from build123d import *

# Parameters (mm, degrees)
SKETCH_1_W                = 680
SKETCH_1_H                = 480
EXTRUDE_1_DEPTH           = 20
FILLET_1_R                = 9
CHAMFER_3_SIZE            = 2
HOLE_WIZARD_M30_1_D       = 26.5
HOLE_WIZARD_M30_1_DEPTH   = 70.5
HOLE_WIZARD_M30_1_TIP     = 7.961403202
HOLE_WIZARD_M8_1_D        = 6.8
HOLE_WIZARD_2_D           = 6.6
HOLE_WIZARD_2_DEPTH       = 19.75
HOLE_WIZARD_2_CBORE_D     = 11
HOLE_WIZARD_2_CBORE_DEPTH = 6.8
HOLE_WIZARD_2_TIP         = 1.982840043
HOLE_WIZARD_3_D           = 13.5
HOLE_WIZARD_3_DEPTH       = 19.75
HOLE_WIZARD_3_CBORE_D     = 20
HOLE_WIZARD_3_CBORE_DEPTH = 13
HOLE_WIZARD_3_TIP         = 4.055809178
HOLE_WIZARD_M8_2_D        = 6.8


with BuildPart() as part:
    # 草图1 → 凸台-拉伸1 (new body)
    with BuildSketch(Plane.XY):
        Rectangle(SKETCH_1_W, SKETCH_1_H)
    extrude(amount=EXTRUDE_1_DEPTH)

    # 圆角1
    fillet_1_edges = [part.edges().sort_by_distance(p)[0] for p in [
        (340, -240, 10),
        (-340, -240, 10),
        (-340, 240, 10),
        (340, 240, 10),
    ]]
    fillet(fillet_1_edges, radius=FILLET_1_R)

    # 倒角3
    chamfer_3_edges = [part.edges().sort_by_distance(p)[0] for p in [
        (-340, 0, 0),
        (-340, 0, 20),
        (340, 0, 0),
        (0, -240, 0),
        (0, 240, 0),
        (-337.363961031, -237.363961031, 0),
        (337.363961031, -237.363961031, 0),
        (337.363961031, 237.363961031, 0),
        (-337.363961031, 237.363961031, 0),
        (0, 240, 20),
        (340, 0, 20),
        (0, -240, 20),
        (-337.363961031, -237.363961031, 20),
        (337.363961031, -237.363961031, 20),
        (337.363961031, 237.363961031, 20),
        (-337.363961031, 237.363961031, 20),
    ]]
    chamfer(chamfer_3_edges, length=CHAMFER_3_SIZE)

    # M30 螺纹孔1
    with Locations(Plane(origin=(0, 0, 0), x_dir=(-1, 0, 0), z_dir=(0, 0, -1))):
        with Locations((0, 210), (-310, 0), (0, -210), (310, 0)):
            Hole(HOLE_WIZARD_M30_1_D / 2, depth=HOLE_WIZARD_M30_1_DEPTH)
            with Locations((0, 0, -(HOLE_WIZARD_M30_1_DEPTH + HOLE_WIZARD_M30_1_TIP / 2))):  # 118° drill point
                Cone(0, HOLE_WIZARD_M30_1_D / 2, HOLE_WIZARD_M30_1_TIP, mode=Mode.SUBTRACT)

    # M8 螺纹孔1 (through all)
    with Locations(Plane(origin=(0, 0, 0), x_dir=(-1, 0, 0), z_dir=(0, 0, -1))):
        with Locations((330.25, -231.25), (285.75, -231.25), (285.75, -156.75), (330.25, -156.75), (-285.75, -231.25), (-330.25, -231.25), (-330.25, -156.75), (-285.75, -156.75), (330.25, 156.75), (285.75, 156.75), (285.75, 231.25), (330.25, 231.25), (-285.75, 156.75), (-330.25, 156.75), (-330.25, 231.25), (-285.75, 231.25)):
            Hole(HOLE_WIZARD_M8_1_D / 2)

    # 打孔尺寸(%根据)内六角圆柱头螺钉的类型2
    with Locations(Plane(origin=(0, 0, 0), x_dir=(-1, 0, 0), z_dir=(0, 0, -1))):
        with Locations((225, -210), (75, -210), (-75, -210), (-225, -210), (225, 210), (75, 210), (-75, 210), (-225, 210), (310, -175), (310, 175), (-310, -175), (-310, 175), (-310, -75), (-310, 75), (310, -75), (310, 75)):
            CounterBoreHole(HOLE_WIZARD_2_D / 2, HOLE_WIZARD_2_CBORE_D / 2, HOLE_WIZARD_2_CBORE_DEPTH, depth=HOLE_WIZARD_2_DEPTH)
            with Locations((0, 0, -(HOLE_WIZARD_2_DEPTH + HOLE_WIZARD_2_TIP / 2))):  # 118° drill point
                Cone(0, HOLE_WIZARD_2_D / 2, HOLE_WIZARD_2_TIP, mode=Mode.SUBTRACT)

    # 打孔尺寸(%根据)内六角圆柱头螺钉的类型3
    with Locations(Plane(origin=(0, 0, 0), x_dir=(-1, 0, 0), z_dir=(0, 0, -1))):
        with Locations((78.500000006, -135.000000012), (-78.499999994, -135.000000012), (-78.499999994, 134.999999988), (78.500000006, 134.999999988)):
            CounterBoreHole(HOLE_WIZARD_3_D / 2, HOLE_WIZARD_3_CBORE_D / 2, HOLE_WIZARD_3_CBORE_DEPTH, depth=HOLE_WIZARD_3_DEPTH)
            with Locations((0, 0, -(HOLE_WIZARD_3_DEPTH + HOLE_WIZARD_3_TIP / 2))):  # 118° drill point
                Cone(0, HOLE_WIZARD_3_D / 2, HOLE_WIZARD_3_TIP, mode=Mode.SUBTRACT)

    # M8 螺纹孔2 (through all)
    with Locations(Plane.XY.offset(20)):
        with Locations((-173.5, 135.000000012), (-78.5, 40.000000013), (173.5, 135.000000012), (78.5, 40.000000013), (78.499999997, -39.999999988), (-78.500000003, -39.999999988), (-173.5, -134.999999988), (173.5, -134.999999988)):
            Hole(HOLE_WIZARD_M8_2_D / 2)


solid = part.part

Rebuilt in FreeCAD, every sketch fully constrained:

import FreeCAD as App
import Part
import Sketcher


def edges_at(feature, points):
    """Names of the edges that pass closest to the given points."""
    edges = feature.Shape.Edges
    near = lambda p: min(range(len(edges)), key=lambda i: edges[i].distToShape(Part.Vertex(*p))[0])
    return sorted({f"Edge{near(p) + 1}" for p in points})


def add_polygon(sketch, points):
    """Adds a closed chain of lines whose ends are joined by coincident constraints."""
    first, n = sketch.GeometryCount, len(points)
    for a, b in zip(points, points[1:] + points[:1]):
        sketch.addGeometry(Part.LineSegment(App.Vector(*a, 0), App.Vector(*b, 0)), False)
    for i in range(n):
        sketch.addConstraint(Sketcher.Constraint("Coincident", first + i, 2, first + (i + 1) % n, 1))

doc = App.newDocument("Part")
params = doc.addObject("Spreadsheet::Sheet", "Params")
for row, (alias, value) in enumerate([
    ("sketch1_width", "680 mm"),
    ("sketch1_height", "480 mm"),
    ("pad1_length", "20 mm"),
    ("fillet_radius", "9 mm"),
    ("chamfer_size", "2 mm"),
    ("sketch2_diameter", "26.5 mm"),
    ("hole_diameter", "26.5 mm"),
    ("hole_depth", "70.5 mm"),
    ("sketch3_diameter", "6.8 mm"),
    ("hole2_diameter", "6.8 mm"),
    ("sketch4_diameter", "6.6 mm"),
    ("hole3_diameter", "6.6 mm"),
    ("hole3_depth", "19.75 mm"),
    ("hole3_cbore_diameter", "11 mm"),
    ("hole3_cbore_depth", "6.8 mm"),
    ("sketch5_diameter", "13.5 mm"),
    ("hole4_diameter", "13.5 mm"),
    ("hole4_depth", "19.75 mm"),
    ("hole4_cbore_diameter", "20 mm"),
    ("hole4_cbore_depth", "13 mm"),
    ("sketch6_diameter", "6.8 mm"),
    ("hole5_diameter", "6.8 mm"),
], start=1):
    params.set(f"A{row}", alias)
    params.set(f"B{row}", "=" + value)
    params.setAlias(f"B{row}", alias)

body = doc.addObject("PartDesign::Body", "Body")

# Sketch on XY plane
sketch1 = body.newObject("Sketcher::SketchObject", "Sketch")
sketch1.AttachmentSupport = (doc.getObject("XY_Plane"), [""])
sketch1.MapMode = "FlatFace"
add_polygon(sketch1, [(-340, 240), (-340, -240), (340, -240), (340, 240)])  # lines 0-3
sketch1.addConstraint([
    Sketcher.Constraint("Vertical", 0),
    Sketcher.Constraint("Horizontal", 1),
    Sketcher.Constraint("Vertical", 2),
    Sketcher.Constraint("Horizontal", 3),
    Sketcher.Constraint("Symmetric", 0, 2, 2, 2, -1, 1),
    Sketcher.Constraint("DistanceX", 1, 1, 1, 2, 680.0),
    Sketcher.Constraint("DistanceY", 0, 2, 0, 1, 480.0),
])
sketch1.setExpression("Constraints[9]", "Params.sketch1_width")
sketch1.setExpression("Constraints[10]", "Params.sketch1_height")
pad1 = body.newObject("PartDesign::Pad", "Pad")
pad1.Profile = sketch1
pad1.setExpression("Length", "Params.pad1_length")
doc.recompute()

fillet = body.newObject("PartDesign::Fillet", "Fillet")
fillet.Base = (pad1, edges_at(pad1, [
    (340, -240, 10),
    (-340, -240, 10),
    (-340, 240, 10),
    (340, 240, 10),
]))
fillet.setExpression("Radius", "Params.fillet_radius")
doc.recompute()

chamfer = body.newObject("PartDesign::Chamfer", "Chamfer")
chamfer.Base = (fillet, edges_at(fillet, [
    (-340, 0, 0),
    (-340, 0, 20),
    (340, 0, 0),
    (0, -240, 0),
    (0, 240, 0),
    (-337.364, -237.364, 0),
    (337.364, -237.364, 0),
    (337.364, 237.364, 0),
    (-337.364, 237.364, 0),
    (0, 240, 20),
    (340, 0, 20),
    (0, -240, 20),
    (-337.364, -237.364, 20),
    (337.364, -237.364, 20),
    (337.364, 237.364, 20),
    (-337.364, 237.364, 20),
]))
chamfer.setExpression("Size", "Params.chamfer_size")

# Sketch on XY plane
sketch2 = body.newObject("Sketcher::SketchObject", "Sketch001")
sketch2.AttachmentSupport = (doc.getObject("XY_Plane"), [""])
sketch2.MapMode = "FlatFace"
sketch2.addGeometry([
    Part.Circle(App.Vector(0, 210, 0), App.Vector(0, 0, 1), 13),
    Part.Circle(App.Vector(310, 0, 0), App.Vector(0, 0, 1), 13),
    Part.Circle(App.Vector(0, -210, 0), App.Vector(0, 0, 1), 13),
    Part.Circle(App.Vector(-310, 0, 0), App.Vector(0, 0, 1), 13),
], False)
sketch2.addConstraint([
    Sketcher.Constraint("Equal", 0, 1),
    Sketcher.Constraint("Equal", 1, 2),
    Sketcher.Constraint("Equal", 2, 3),
    Sketcher.Constraint("Symmetric", 0, 3, 2, 3, -1, 1),
    Sketcher.Constraint("Symmetric", 1, 3, 3, 3, -1, 1),
    Sketcher.Constraint("PointOnObject", 0, 3, -2),
    Sketcher.Constraint("PointOnObject", 1, 3, -1),
    Sketcher.Constraint("Diameter", 0, 26.5),
    Sketcher.Constraint("DistanceY", -1, 1, 0, 3, 210.0),
    Sketcher.Constraint("DistanceX", -1, 1, 1, 3, 310.0),
])
sketch2.setExpression("Constraints[7]", "Params.sketch2_diameter")
doc.recompute()
hole = body.newObject("PartDesign::Hole", "Hole")
hole.Profile = sketch2
hole.ThreadType = "None"
hole.setExpression("Diameter", "Params.hole_diameter")
hole.DepthType = "Dimension"
hole.setExpression("Depth", "Params.hole_depth")
hole.DrillPoint = "Angled"
hole.DrillPointAngle = 118
hole.Reversed = True

# Sketch on XY plane
sketch3 = body.newObject("Sketcher::SketchObject", "Sketch002")
sketch3.AttachmentSupport = (doc.getObject("XY_Plane"), [""])
sketch3.MapMode = "FlatFace"
sketch3.addGeometry([
    Part.Circle(App.Vector(-330.2, -231.2, 0), App.Vector(0, 0, 1), 3.4),  # 0
    Part.Circle(App.Vector(-285.8, -231.2, 0), App.Vector(0, 0, 1), 3.4),  # 1
    Part.Circle(App.Vector(-285.8, -156.8, 0), App.Vector(0, 0, 1), 3.4),  # 2
    Part.Circle(App.Vector(-330.2, -156.8, 0), App.Vector(0, 0, 1), 3.4),  # 3
    Part.Circle(App.Vector(285.8, -231.2, 0), App.Vector(0, 0, 1), 3.4),  # 4
    Part.Circle(App.Vector(330.2, -231.2, 0), App.Vector(0, 0, 1), 3.4),  # 5
    Part.Circle(App.Vector(330.2, -156.8, 0), App.Vector(0, 0, 1), 3.4),  # 6
    Part.Circle(App.Vector(285.8, -156.8, 0), App.Vector(0, 0, 1), 3.4),  # 7
    Part.Circle(App.Vector(-330.2, 156.8, 0), App.Vector(0, 0, 1), 3.4),  # 8
    Part.Circle(App.Vector(-285.8, 156.8, 0), App.Vector(0, 0, 1), 3.4),  # 9
    Part.Circle(App.Vector(-285.8, 231.2, 0), App.Vector(0, 0, 1), 3.4),  # 10
    Part.Circle(App.Vector(-330.2, 231.2, 0), App.Vector(0, 0, 1), 3.4),  # 11
    Part.Circle(App.Vector(285.8, 156.8, 0), App.Vector(0, 0, 1), 3.4),  # 12
    Part.Circle(App.Vector(330.2, 156.8, 0), App.Vector(0, 0, 1), 3.4),  # 13
    Part.Circle(App.Vector(330.2, 231.2, 0), App.Vector(0, 0, 1), 3.4),  # 14
    Part.Circle(App.Vector(285.8, 231.2, 0), App.Vector(0, 0, 1), 3.4),  # 15
], False)
sketch3.addConstraint([
    Sketcher.Constraint("Equal", 0, 1),
    Sketcher.Constraint("Equal", 1, 2),
    Sketcher.Constraint("Equal", 2, 3),
    Sketcher.Constraint("Equal", 3, 4),
    Sketcher.Constraint("Equal", 4, 5),
    Sketcher.Constraint("Equal", 5, 6),
    Sketcher.Constraint("Equal", 6, 7),
    Sketcher.Constraint("Equal", 7, 8),
    Sketcher.Constraint("Equal", 8, 9),
    Sketcher.Constraint("Equal", 9, 10),
    Sketcher.Constraint("Equal", 10, 11),
    Sketcher.Constraint("Equal", 11, 12),
    Sketcher.Constraint("Equal", 12, 13),
    Sketcher.Constraint("Equal", 13, 14),
    Sketcher.Constraint("Equal", 14, 15),
    Sketcher.Constraint("Symmetric", 6, 3, 8, 3, -1, 1),
    Sketcher.Constraint("Symmetric", 7, 3, 9, 3, -1, 1),
    Sketcher.Constraint("Symmetric", 4, 3, 10, 3, -1, 1),
    Sketcher.Constraint("Symmetric", 5, 3, 11, 3, -1, 1),
    Sketcher.Constraint("Symmetric", 2, 3, 12, 3, -1, 1),
    Sketcher.Constraint("Symmetric", 3, 3, 13, 3, -1, 1),
    Sketcher.Constraint("Symmetric", 0, 3, 14, 3, -1, 1),
    Sketcher.Constraint("Symmetric", 1, 3, 15, 3, -1, 1),
    Sketcher.Constraint("Symmetric", 1, 3, 4, 3, -2),
    Sketcher.Constraint("Symmetric", 0, 3, 5, 3, -2),
    Sketcher.Constraint("Symmetric", 3, 3, 6, 3, -2),
    Sketcher.Constraint("Symmetric", 2, 3, 7, 3, -2),
    Sketcher.Constraint("Horizontal", 0, 3, 1, 3),
    Sketcher.Constraint("Horizontal", 2, 3, 3, 3),
    Sketcher.Constraint("Vertical", 1, 3, 2, 3),
    Sketcher.Constraint("Vertical", 0, 3, 3, 3),
    Sketcher.Constraint("Diameter", 0, 6.8),
    Sketcher.Constraint("DistanceX", 0, 3, 4, 3, 616.0),
    Sketcher.Constraint("DistanceY", 0, 3, 8, 3, 388.0),
    Sketcher.Constraint("DistanceX", 0, 3, 1, 3, 44.5),
    Sketcher.Constraint("DistanceY", 1, 3, 2, 3, 74.5),
])
sketch3.setExpression("Constraints[31]", "Params.sketch3_diameter")
doc.recompute()
hole2 = body.newObject("PartDesign::Hole", "Hole001")
hole2.Profile = sketch3
hole2.ThreadType = "None"
hole2.setExpression("Diameter", "Params.hole2_diameter")
hole2.DepthType = "ThroughAll"
hole2.Reversed = True

# Sketch on XY plane
sketch4 = body.newObject("Sketcher::SketchObject", "Sketch003")
sketch4.AttachmentSupport = (doc.getObject("XY_Plane"), [""])
sketch4.MapMode = "FlatFace"
sketch4.addGeometry([
    Part.Circle(App.Vector(-225, -210, 0), App.Vector(0, 0, 1), 3.3),  # 0
    Part.Circle(App.Vector(-75, -210, 0), App.Vector(0, 0, 1), 3.3),  # 1
    Part.Circle(App.Vector(75, -210, 0), App.Vector(0, 0, 1), 3.3),  # 2
    Part.Circle(App.Vector(225, -210, 0), App.Vector(0, 0, 1), 3.3),  # 3
    Part.Circle(App.Vector(-225, 210, 0), App.Vector(0, 0, 1), 3.3),  # 4
    Part.Circle(App.Vector(-75, 210, 0), App.Vector(0, 0, 1), 3.3),  # 5
    Part.Circle(App.Vector(75, 210, 0), App.Vector(0, 0, 1), 3.3),  # 6
    Part.Circle(App.Vector(225, 210, 0), App.Vector(0, 0, 1), 3.3),  # 7
    Part.Circle(App.Vector(-310, -175, 0), App.Vector(0, 0, 1), 3.3),  # 8
    Part.Circle(App.Vector(-310, 175, 0), App.Vector(0, 0, 1), 3.3),  # 9
    Part.Circle(App.Vector(310, -175, 0), App.Vector(0, 0, 1), 3.3),  # 10
    Part.Circle(App.Vector(310, 175, 0), App.Vector(0, 0, 1), 3.3),  # 11
    Part.Circle(App.Vector(310, -75, 0), App.Vector(0, 0, 1), 3.3),  # 12
    Part.Circle(App.Vector(310, 75, 0), App.Vector(0, 0, 1), 3.3),  # 13
    Part.Circle(App.Vector(-310, -75, 0), App.Vector(0, 0, 1), 3.3),  # 14
    Part.Circle(App.Vector(-310, 75, 0), App.Vector(0, 0, 1), 3.3),  # 15
], False)
sketch4.addConstraint([
    Sketcher.Constraint("Equal", 0, 1),
    Sketcher.Constraint("Equal", 1, 2),
    Sketcher.Constraint("Equal", 2, 3),
    Sketcher.Constraint("Equal", 3, 4),
    Sketcher.Constraint("Equal", 4, 5),
    Sketcher.Constraint("Equal", 5, 6),
    Sketcher.Constraint("Equal", 6, 7),
    Sketcher.Constraint("Equal", 7, 8),
    Sketcher.Constraint("Equal", 8, 9),
    Sketcher.Constraint("Equal", 9, 10),
    Sketcher.Constraint("Equal", 10, 11),
    Sketcher.Constraint("Equal", 11, 12),
    Sketcher.Constraint("Equal", 12, 13),
    Sketcher.Constraint("Equal", 13, 14),
    Sketcher.Constraint("Equal", 14, 15),
    Sketcher.Constraint("Symmetric", 3, 3, 4, 3, -1, 1),
    Sketcher.Constraint("Symmetric", 2, 3, 5, 3, -1, 1),
    Sketcher.Constraint("Symmetric", 1, 3, 6, 3, -1, 1),
    Sketcher.Constraint("Symmetric", 0, 3, 7, 3, -1, 1),
    Sketcher.Constraint("Symmetric", 9, 3, 10, 3, -1, 1),
    Sketcher.Constraint("Symmetric", 8, 3, 11, 3, -1, 1),
    Sketcher.Constraint("Symmetric", 13, 3, 14, 3, -1, 1),
    Sketcher.Constraint("Symmetric", 12, 3, 15, 3, -1, 1),
    Sketcher.Constraint("Symmetric", 1, 3, 2, 3, -2),
    Sketcher.Constraint("Symmetric", 0, 3, 3, 3, -2),
    Sketcher.Constraint("Symmetric", 8, 3, 10, 3, -2),
    Sketcher.Constraint("Symmetric", 12, 3, 14, 3, -2),
    Sketcher.Constraint("Horizontal", 0, 3, 1, 3),
    Sketcher.Constraint("Vertical", 11, 3, 12, 3),
    Sketcher.Constraint("Diameter", 0, 6.6),
    Sketcher.Constraint("DistanceX", 0, 3, -1, 1, 225.0),
    Sketcher.Constraint("DistanceY", 0, 3, -1, 1, 210.0),
    Sketcher.Constraint("DistanceX", 1, 3, -1, 1, 75.0),
    Sketcher.Constraint("DistanceX", 8, 3, -1, 1, 310.0),
    Sketcher.Constraint("DistanceY", 8, 3, -1, 1, 175.0),
    Sketcher.Constraint("DistanceY", 12, 3, -1, 1, 75.0),
])
sketch4.setExpression("Constraints[29]", "Params.sketch4_diameter")
doc.recompute()
hole3 = body.newObject("PartDesign::Hole", "Hole002")
hole3.Profile = sketch4
hole3.ThreadType = "None"
hole3.setExpression("Diameter", "Params.hole3_diameter")
hole3.DepthType = "Dimension"
hole3.setExpression("Depth", "Params.hole3_depth")
hole3.DrillPoint = "Angled"
hole3.DrillPointAngle = 118
hole3.HoleCutType = "Counterbore"
hole3.setExpression("HoleCutDiameter", "Params.hole3_cbore_diameter")
hole3.setExpression("HoleCutDepth", "Params.hole3_cbore_depth")
hole3.Reversed = True

# Sketch on XY plane
sketch5 = body.newObject("Sketcher::SketchObject", "Sketch004")
sketch5.AttachmentSupport = (doc.getObject("XY_Plane"), [""])
sketch5.MapMode = "FlatFace"
sketch5.addGeometry([
    Part.Circle(App.Vector(-79, -135, 0), App.Vector(0, 0, 1), 7),
    Part.Circle(App.Vector(78, -135, 0), App.Vector(0, 0, 1), 7),
    Part.Circle(App.Vector(78, 135, 0), App.Vector(0, 0, 1), 7),
    Part.Circle(App.Vector(-79, 135, 0), App.Vector(0, 0, 1), 7),
], False)
sketch5.addConstraint([
    Sketcher.Constraint("Equal", 0, 1),
    Sketcher.Constraint("Equal", 1, 2),
    Sketcher.Constraint("Equal", 2, 3),
    Sketcher.Constraint("Symmetric", 0, 3, 2, 3, -1, 1),
    Sketcher.Constraint("Symmetric", 1, 3, 3, 3, -1, 1),
    Sketcher.Constraint("Symmetric", 0, 3, 1, 3, -2),
    Sketcher.Constraint("Diameter", 0, 13.5),
    Sketcher.Constraint("DistanceY", 0, 3, -1, 1, 135.0),
    Sketcher.Constraint("DistanceX", 0, 3, 1, 3, 157.0),
])
sketch5.setExpression("Constraints[6]", "Params.sketch5_diameter")
doc.recompute()
hole4 = body.newObject("PartDesign::Hole", "Hole003")
hole4.Profile = sketch5
hole4.ThreadType = "None"
hole4.setExpression("Diameter", "Params.hole4_diameter")
hole4.DepthType = "Dimension"
hole4.setExpression("Depth", "Params.hole4_depth")
hole4.DrillPoint = "Angled"
hole4.DrillPointAngle = 118
hole4.HoleCutType = "Counterbore"
hole4.setExpression("HoleCutDiameter", "Params.hole4_cbore_diameter")
hole4.setExpression("HoleCutDepth", "Params.hole4_cbore_depth")
hole4.Reversed = True

# Sketch on XY plane
sketch6 = body.newObject("Sketcher::SketchObject", "Sketch005")
sketch6.AttachmentSupport = (doc.getObject("XY_Plane"), [""])
sketch6.MapMode = "FlatFace"
sketch6.AttachmentOffset = App.Placement(App.Vector(0, 0, 20), App.Rotation())
sketch6.addGeometry([
    Part.Circle(App.Vector(-173.5, 135, 0), App.Vector(0, 0, 1), 3.4),  # 0
    Part.Circle(App.Vector(-78.5, 40, 0), App.Vector(0, 0, 1), 3.4),  # 1
    Part.Circle(App.Vector(173.5, 135, 0), App.Vector(0, 0, 1), 3.4),  # 2
    Part.Circle(App.Vector(78.5, 40, 0), App.Vector(0, 0, 1), 3.4),  # 3
    Part.Circle(App.Vector(78.5, -40, 0), App.Vector(0, 0, 1), 3.4),  # 4
    Part.Circle(App.Vector(-78.5, -40, 0), App.Vector(0, 0, 1), 3.4),  # 5
    Part.Circle(App.Vector(-173.5, -135, 0), App.Vector(0, 0, 1), 3.4),  # 6
    Part.Circle(App.Vector(173.5, -135, 0), App.Vector(0, 0, 1), 3.4),  # 7
], False)
sketch6.addConstraint([
    Sketcher.Constraint("Equal", 0, 1),
    Sketcher.Constraint("Equal", 1, 2),
    Sketcher.Constraint("Equal", 2, 3),
    Sketcher.Constraint("Equal", 3, 4),
    Sketcher.Constraint("Equal", 4, 5),
    Sketcher.Constraint("Equal", 5, 6),
    Sketcher.Constraint("Equal", 6, 7),
    Sketcher.Constraint("Symmetric", 1, 3, 4, 3, -1, 1),
    Sketcher.Constraint("Symmetric", 3, 3, 5, 3, -1, 1),
    Sketcher.Constraint("Symmetric", 2, 3, 6, 3, -1, 1),
    Sketcher.Constraint("Symmetric", 0, 3, 7, 3, -1, 1),
    Sketcher.Constraint("Symmetric", 0, 3, 2, 3, -2),
    Sketcher.Constraint("Symmetric", 1, 3, 3, 3, -2),
    Sketcher.Constraint("Diameter", 0, 6.8),
    Sketcher.Constraint("DistanceY", -1, 1, 0, 3, 135.0),
    Sketcher.Constraint("DistanceY", -1, 1, 1, 3, 40.0),
    Sketcher.Constraint("DistanceX", 0, 3, 1, 3, 95.0),
    Sketcher.Constraint("DistanceX", 1, 3, 2, 3, 252.0),
])
sketch6.setExpression("Constraints[13]", "Params.sketch6_diameter")
doc.recompute()
hole5 = body.newObject("PartDesign::Hole", "Hole004")
hole5.Profile = sketch6
hole5.ThreadType = "None"
hole5.setExpression("Diameter", "Params.hole5_diameter")
hole5.DepthType = "ThroughAll"

doc.recompute()
